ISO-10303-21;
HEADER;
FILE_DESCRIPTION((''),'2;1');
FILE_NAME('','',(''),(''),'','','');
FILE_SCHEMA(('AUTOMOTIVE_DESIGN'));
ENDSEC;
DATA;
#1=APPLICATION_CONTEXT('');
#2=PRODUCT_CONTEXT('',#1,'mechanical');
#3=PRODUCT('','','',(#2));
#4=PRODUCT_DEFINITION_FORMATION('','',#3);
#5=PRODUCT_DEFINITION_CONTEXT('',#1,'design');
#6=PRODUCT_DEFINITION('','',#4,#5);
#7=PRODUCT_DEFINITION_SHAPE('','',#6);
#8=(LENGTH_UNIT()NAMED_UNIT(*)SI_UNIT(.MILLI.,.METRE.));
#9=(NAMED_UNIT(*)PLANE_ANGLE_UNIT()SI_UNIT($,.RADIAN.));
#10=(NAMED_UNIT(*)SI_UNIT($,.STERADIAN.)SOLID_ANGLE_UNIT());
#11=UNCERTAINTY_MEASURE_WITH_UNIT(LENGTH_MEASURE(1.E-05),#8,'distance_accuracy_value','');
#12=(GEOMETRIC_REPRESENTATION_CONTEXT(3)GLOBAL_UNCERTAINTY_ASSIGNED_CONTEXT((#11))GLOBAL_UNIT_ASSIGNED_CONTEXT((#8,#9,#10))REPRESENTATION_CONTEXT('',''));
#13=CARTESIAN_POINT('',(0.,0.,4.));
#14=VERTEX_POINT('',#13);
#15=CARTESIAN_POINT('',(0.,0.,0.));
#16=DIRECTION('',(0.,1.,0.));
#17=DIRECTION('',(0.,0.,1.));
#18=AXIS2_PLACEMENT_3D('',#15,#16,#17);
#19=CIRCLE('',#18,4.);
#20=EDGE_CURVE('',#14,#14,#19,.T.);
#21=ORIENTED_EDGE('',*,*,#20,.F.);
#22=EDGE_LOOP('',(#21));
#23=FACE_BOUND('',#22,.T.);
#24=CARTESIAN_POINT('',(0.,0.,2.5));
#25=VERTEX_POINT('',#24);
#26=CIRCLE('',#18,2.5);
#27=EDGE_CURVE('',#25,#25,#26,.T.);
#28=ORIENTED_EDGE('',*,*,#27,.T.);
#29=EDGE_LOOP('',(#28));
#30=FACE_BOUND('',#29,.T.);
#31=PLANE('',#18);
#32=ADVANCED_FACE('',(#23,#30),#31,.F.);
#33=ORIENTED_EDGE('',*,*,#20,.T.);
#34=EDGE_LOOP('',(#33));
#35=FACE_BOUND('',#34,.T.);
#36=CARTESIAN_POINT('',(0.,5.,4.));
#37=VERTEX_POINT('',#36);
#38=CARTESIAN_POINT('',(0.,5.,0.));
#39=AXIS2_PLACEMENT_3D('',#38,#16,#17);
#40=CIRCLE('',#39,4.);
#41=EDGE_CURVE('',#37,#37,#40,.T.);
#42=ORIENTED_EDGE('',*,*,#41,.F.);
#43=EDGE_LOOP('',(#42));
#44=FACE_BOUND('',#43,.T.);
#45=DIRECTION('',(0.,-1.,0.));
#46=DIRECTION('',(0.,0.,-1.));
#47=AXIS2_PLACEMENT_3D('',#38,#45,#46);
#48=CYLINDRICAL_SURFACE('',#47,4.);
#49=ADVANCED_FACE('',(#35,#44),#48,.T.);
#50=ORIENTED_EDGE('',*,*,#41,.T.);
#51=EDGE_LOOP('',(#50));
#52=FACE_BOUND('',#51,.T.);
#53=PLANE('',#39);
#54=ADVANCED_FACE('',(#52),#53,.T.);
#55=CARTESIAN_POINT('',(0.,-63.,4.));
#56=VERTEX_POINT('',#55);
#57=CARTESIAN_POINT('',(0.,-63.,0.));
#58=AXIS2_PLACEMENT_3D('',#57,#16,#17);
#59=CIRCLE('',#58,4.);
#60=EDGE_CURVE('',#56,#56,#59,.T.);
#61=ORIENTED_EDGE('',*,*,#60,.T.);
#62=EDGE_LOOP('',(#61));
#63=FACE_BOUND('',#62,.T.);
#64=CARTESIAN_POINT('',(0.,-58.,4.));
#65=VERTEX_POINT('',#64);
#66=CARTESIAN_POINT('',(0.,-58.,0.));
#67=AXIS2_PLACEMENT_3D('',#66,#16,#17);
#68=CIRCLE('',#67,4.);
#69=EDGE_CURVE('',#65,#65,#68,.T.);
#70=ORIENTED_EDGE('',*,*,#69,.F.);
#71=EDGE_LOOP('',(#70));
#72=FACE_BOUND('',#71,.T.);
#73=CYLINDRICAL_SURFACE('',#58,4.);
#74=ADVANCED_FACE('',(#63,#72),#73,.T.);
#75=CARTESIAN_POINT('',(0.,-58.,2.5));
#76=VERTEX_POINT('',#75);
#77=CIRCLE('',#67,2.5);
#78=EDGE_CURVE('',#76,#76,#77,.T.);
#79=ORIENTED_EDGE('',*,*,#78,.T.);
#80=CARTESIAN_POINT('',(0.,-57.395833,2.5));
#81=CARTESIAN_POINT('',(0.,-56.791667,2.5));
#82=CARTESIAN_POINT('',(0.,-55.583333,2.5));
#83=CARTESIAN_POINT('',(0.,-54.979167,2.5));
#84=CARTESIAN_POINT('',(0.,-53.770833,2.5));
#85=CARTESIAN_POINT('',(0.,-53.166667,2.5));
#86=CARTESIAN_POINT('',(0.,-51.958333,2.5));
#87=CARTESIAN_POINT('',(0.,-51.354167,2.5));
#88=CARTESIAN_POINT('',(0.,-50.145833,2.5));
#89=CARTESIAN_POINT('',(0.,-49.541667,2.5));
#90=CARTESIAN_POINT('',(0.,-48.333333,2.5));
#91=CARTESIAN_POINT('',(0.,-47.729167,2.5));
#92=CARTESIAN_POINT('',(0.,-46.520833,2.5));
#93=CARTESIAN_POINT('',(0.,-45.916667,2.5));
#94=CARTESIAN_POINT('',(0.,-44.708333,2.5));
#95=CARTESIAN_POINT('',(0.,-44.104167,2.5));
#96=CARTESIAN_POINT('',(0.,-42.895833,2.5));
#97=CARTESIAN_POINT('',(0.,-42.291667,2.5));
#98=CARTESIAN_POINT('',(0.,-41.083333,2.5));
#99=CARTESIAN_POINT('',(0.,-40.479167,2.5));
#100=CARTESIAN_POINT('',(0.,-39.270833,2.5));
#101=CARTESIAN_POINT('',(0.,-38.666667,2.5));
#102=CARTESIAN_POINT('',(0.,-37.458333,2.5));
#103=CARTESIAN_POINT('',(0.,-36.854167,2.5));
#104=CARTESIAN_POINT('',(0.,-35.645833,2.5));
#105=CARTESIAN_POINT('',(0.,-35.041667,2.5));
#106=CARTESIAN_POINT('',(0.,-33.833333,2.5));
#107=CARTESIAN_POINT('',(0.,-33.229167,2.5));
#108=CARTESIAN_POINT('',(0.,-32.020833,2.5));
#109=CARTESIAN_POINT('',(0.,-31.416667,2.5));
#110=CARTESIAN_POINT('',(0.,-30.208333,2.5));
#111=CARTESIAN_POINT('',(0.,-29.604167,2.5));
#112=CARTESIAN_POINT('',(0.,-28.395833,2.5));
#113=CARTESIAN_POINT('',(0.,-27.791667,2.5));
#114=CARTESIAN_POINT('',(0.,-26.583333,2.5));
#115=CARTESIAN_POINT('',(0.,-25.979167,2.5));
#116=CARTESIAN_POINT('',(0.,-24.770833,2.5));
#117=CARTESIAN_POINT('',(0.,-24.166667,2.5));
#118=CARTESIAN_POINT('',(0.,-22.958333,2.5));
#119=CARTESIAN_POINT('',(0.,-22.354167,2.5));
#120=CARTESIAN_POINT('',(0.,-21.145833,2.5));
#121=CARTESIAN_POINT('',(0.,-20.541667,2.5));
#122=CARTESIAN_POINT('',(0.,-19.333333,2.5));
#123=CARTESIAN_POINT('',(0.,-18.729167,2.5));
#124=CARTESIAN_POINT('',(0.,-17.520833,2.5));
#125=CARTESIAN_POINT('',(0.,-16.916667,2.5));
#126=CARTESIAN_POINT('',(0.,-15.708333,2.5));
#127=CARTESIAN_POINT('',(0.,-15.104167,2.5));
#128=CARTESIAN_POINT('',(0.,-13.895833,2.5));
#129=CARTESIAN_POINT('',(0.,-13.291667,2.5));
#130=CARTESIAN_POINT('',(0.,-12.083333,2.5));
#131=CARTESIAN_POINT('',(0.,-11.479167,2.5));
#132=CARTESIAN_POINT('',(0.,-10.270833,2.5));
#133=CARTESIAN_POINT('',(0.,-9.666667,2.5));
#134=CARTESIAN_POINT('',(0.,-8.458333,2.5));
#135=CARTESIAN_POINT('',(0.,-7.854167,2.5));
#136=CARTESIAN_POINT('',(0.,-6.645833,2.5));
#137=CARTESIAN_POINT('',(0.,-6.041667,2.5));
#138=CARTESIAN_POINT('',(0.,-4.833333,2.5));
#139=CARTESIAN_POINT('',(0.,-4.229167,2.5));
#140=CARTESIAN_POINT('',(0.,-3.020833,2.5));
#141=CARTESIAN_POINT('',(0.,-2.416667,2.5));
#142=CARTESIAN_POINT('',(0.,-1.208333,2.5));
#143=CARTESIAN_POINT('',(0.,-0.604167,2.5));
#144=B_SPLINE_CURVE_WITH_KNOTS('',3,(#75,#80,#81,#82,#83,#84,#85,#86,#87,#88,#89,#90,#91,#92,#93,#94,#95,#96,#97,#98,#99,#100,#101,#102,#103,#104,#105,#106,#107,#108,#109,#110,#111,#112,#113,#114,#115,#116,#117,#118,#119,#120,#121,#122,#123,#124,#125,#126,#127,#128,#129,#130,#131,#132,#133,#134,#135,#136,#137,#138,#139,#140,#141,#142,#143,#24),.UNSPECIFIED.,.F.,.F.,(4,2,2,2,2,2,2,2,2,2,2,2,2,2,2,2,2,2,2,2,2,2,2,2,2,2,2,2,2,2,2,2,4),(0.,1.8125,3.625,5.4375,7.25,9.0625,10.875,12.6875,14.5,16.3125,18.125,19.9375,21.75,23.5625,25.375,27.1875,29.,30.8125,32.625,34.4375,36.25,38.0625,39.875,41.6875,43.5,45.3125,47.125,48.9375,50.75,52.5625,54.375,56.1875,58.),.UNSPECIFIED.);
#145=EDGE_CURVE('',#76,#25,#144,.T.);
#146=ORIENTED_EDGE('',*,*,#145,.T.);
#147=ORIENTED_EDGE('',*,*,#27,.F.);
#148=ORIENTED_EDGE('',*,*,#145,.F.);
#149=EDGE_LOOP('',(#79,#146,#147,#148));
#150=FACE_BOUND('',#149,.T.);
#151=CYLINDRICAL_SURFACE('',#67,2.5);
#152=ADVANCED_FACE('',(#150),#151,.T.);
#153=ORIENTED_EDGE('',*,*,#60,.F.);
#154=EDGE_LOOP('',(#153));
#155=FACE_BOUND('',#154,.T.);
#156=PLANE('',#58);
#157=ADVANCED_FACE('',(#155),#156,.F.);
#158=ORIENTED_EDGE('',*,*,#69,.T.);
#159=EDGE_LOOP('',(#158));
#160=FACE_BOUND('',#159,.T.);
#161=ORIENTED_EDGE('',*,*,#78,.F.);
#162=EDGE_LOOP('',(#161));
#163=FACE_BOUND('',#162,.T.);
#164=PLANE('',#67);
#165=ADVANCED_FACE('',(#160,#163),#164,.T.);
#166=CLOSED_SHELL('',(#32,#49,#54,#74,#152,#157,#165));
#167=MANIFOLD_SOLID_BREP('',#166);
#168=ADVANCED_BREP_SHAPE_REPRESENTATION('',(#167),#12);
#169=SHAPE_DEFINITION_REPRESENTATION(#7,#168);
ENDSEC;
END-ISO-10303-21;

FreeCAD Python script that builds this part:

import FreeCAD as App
import Part
import Sketcher

V = App.Vector
Q = App.Units.Quantity

doc = App.newDocument("Part")
body = doc.addObject("PartDesign::Body", "Body")

# Sketch on XZ plane
sketch1 = body.newObject("Sketcher::SketchObject", "Sketch")
sketch1.AttachmentSupport = (doc.getObject("XZ_Plane"), [""])
sketch1.MapMode = "FlatFace"
sketch1.addGeometry(Part.Circle(V(0, 0, 0), V(0, 0, 1), 2.5), False)
sketch1.addConstraint([
    Sketcher.Constraint("Coincident", 0, 3, -1, 1),
    Sketcher.Constraint("Diameter", 0, Q("5 mm")),
])
pad1 = body.newObject("PartDesign::Pad", "Pad")
pad1.Profile = sketch1
pad1.Length = 58

# Sketch on XZ plane
sketch2 = body.newObject("Sketcher::SketchObject", "Sketch001")
sketch2.AttachmentSupport = (doc.getObject("XZ_Plane"), [""])
sketch2.MapMode = "FlatFace"
sketch2.addGeometry(Part.Circle(V(0, 0, 0), V(0, 0, 1), 4), False)
sketch2.addConstraint([
    Sketcher.Constraint("Coincident", 0, 3, -1, 1),
    Sketcher.Constraint("Diameter", 0, Q("8 mm")),
])
pad2 = body.newObject("PartDesign::Pad", "Pad001")
pad2.Profile = sketch2
pad2.Length = 5
pad2.Reversed = True

# Sketch on XZ plane
sketch3 = body.newObject("Sketcher::SketchObject", "Sketch002")
sketch3.AttachmentSupport = (doc.getObject("XZ_Plane"), [""])
sketch3.MapMode = "FlatFace"
sketch3.AttachmentOffset = App.Placement(V(0, 0, 63), App.Rotation())
sketch3.addGeometry(Part.Circle(V(0, 0, 0), V(0, 0, 1), 4), False)
sketch3.addConstraint([
    Sketcher.Constraint("Coincident", 0, 3, -1, 1),
    Sketcher.Constraint("Diameter", 0, Q("8 mm")),
])
pad3 = body.newObject("PartDesign::Pad", "Pad002")
pad3.Profile = sketch3
pad3.Length = 5
pad3.Reversed = True

doc.recompute()
